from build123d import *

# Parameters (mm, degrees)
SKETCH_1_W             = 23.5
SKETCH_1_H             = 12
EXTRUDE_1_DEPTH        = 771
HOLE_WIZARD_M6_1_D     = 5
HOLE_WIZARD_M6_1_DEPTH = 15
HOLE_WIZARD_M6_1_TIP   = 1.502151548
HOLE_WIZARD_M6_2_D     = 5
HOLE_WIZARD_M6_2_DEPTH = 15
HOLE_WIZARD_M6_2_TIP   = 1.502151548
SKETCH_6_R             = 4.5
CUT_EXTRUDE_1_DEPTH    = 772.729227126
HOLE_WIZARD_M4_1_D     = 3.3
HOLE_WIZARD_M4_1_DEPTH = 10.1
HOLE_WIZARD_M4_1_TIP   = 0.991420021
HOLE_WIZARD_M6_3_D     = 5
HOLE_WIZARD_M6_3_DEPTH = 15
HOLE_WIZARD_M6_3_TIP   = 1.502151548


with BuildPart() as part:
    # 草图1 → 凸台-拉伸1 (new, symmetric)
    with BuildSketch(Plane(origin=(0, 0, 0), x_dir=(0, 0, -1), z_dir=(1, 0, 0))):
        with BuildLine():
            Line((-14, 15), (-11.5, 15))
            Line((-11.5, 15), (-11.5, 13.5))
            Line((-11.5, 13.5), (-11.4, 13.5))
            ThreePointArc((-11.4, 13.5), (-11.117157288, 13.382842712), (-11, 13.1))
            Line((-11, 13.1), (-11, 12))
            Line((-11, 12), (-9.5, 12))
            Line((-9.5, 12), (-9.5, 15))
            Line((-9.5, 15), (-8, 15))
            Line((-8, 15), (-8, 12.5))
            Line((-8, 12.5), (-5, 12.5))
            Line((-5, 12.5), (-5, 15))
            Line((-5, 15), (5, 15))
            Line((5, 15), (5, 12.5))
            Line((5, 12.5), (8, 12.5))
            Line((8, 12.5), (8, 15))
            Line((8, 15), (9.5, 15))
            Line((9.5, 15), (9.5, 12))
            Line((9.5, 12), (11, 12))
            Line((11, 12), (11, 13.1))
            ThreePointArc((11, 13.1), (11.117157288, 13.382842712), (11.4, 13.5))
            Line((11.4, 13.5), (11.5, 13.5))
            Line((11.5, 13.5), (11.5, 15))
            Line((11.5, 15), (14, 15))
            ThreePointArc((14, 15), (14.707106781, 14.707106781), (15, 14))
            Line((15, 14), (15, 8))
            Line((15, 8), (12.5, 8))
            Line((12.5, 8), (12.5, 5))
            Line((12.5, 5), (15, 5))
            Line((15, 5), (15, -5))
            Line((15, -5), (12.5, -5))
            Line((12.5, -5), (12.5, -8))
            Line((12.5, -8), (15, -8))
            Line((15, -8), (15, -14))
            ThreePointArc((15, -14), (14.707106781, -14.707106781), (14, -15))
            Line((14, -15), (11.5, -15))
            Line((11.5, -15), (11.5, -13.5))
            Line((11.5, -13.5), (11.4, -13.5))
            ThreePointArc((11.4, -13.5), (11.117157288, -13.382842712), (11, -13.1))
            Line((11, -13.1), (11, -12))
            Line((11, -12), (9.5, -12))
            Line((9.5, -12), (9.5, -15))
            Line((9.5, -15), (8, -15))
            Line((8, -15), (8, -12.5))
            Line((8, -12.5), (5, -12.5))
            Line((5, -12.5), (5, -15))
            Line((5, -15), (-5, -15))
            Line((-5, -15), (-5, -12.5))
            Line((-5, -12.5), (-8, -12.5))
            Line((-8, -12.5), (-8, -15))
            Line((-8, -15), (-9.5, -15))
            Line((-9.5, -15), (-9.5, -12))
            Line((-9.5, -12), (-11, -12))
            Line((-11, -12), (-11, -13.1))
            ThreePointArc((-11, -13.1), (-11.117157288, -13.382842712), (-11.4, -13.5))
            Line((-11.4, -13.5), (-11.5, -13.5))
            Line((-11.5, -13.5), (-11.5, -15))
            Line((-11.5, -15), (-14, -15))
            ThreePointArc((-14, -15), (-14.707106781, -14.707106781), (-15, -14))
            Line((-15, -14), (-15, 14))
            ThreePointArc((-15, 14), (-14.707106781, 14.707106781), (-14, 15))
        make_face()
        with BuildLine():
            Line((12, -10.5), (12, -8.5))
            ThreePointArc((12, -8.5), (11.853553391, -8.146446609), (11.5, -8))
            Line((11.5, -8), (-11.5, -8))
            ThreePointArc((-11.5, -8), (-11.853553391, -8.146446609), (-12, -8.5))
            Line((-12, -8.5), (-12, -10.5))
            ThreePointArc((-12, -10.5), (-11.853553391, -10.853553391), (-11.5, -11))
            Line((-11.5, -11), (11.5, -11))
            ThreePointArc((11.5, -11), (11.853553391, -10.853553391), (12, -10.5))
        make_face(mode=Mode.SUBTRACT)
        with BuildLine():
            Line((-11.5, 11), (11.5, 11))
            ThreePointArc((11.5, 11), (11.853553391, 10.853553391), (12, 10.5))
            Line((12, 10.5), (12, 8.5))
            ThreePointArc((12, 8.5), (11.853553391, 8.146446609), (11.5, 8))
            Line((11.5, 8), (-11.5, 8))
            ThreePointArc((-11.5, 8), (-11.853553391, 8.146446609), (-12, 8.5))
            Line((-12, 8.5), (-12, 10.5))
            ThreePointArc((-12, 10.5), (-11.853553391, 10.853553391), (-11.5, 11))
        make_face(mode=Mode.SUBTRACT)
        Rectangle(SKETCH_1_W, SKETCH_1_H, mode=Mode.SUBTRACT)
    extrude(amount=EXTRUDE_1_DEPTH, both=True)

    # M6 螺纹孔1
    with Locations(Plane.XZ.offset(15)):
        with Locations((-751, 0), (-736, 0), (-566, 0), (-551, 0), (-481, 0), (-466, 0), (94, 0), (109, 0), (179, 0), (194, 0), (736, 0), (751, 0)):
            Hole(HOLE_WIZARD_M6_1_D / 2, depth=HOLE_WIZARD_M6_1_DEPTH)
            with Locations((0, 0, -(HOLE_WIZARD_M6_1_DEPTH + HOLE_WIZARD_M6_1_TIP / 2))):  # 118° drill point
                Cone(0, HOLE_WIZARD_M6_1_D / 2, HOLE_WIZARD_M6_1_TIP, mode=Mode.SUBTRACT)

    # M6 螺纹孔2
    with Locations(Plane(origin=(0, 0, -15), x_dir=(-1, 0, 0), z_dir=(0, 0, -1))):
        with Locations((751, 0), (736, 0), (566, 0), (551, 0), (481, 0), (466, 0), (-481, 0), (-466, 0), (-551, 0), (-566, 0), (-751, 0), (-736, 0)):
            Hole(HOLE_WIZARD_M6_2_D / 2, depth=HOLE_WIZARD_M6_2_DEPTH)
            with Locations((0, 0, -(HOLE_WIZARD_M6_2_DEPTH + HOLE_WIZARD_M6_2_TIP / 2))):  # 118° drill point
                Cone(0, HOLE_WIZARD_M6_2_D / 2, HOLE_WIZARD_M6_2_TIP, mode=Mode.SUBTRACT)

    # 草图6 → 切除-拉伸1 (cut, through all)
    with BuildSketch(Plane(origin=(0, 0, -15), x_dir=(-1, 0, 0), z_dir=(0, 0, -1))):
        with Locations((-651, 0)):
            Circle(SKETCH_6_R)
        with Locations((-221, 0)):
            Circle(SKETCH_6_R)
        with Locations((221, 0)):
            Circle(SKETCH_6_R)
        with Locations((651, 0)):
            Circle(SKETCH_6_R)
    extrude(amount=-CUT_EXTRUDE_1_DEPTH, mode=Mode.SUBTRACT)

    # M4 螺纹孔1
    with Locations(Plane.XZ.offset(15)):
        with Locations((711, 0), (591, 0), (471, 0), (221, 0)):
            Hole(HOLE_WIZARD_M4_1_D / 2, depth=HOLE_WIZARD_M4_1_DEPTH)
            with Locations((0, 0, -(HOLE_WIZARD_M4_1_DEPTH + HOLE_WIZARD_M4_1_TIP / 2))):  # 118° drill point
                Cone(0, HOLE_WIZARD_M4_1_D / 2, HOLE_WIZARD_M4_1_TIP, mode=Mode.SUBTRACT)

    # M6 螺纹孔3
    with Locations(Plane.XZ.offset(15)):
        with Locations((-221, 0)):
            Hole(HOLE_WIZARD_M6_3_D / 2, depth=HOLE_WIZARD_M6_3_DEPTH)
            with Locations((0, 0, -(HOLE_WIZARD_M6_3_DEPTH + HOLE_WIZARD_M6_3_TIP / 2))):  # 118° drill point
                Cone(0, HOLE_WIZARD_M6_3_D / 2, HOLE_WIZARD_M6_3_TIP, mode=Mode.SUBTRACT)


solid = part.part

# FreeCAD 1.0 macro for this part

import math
import FreeCAD as App
import Part
import Sketcher
from FreeCAD import Vector


def add_polygon(sketch, points):
    """Adds a closed chain of lines whose ends are joined by coincident constraints."""
    first, n = sketch.GeometryCount, len(points)
    for a, b in zip(points, points[1:] + points[:1]):
        sketch.addGeometry(Part.LineSegment(App.Vector(*a, 0), App.Vector(*b, 0)), False)
    for i in range(n):
        sketch.addConstraint(Sketcher.Constraint("Coincident", first + i, 2, first + (i + 1) % n, 1))

doc = App.newDocument("Part")
body = doc.addObject("PartDesign::Body", "Body")

# Sketch on YZ plane
sketch1 = doc.addObject("Sketcher::SketchObject", "Sketch")
body.addObject(sketch1)
sketch1.AttachmentSupport = (doc.YZ_Plane, [""])
sketch1.MapMode = "FlatFace"
sketch1.addGeometry(Part.LineSegment(Vector(15, 11.5, 0), Vector(15, 14, 0)), False)  # 0
sketch1.addGeometry(Part.ArcOfCircle(Part.Circle(Vector(14, 14, 0), Vector(0, 0, 1), 1), math.radians(0), math.radians(90)), False)  # 1
sketch1.addGeometry(Part.LineSegment(Vector(14, 15, 0), Vector(-14, 15, 0)), False)  # 2
sketch1.addGeometry(Part.ArcOfCircle(Part.Circle(Vector(-14, 14, 0), Vector(0, 0, 1), 1), math.radians(90), math.radians(180)), False)  # 3
sketch1.addGeometry(Part.LineSegment(Vector(-15, 14, 0), Vector(-15, 11.5, 0)), False)  # 4
sketch1.addGeometry(Part.LineSegment(Vector(-15, 11.5, 0), Vector(-13.5, 11.5, 0)), False)  # 5
sketch1.addGeometry(Part.LineSegment(Vector(-13.5, 11.5, 0), Vector(-13.5, 11.4, 0)), False)  # 6
sketch1.addGeometry(Part.ArcOfCircle(Part.Circle(Vector(-13.1, 11.4, 0), Vector(0, 0, 1), 0.4), math.radians(-180), math.radians(-90)), False)  # 7
sketch1.addGeometry(Part.LineSegment(Vector(-13.1, 11, 0), Vector(-12, 11, 0)), False)  # 8
sketch1.addGeometry(Part.LineSegment(Vector(-12, 11, 0), Vector(-12, 9.5, 0)), False)  # 9
sketch1.addGeometry(Part.LineSegment(Vector(-12, 9.5, 0), Vector(-15, 9.5, 0)), False)  # 10
sketch1.addGeometry(Part.LineSegment(Vector(-15, 9.5, 0), Vector(-15, 8, 0)), False)  # 11
sketch1.addGeometry(Part.LineSegment(Vector(-15, 8, 0), Vector(-12.5, 8, 0)), False)  # 12
sketch1.addGeometry(Part.LineSegment(Vector(-12.5, 8, 0), Vector(-12.5, 5, 0)), False)  # 13
sketch1.addGeometry(Part.LineSegment(Vector(-12.5, 5, 0), Vector(-15, 5, 0)), False)  # 14
sketch1.addGeometry(Part.LineSegment(Vector(-15, 5, 0), Vector(-15, -5, 0)), False)  # 15
sketch1.addGeometry(Part.LineSegment(Vector(-15, -5, 0), Vector(-12.5, -5, 0)), False)  # 16
sketch1.addGeometry(Part.LineSegment(Vector(-12.5, -5, 0), Vector(-12.5, -8, 0)), False)  # 17
sketch1.addGeometry(Part.LineSegment(Vector(-12.5, -8, 0), Vector(-15, -8, 0)), False)  # 18
sketch1.addGeometry(Part.LineSegment(Vector(-15, -8, 0), Vector(-15, -9.5, 0)), False)  # 19
sketch1.addGeometry(Part.LineSegment(Vector(-15, -9.5, 0), Vector(-12, -9.5, 0)), False)  # 20
sketch1.addGeometry(Part.LineSegment(Vector(-12, -9.5, 0), Vector(-12, -11, 0)), False)  # 21
sketch1.addGeometry(Part.LineSegment(Vector(-12, -11, 0), Vector(-13.1, -11, 0)), False)  # 22
sketch1.addGeometry(Part.ArcOfCircle(Part.Circle(Vector(-13.1, -11.4, 0), Vector(0, 0, 1), 0.4), math.radians(90), math.radians(180)), False)  # 23
sketch1.addGeometry(Part.LineSegment(Vector(-13.5, -11.4, 0), Vector(-13.5, -11.5, 0)), False)  # 24
sketch1.addGeometry(Part.LineSegment(Vector(-13.5, -11.5, 0), Vector(-15, -11.5, 0)), False)  # 25
sketch1.addGeometry(Part.LineSegment(Vector(-15, -11.5, 0), Vector(-15, -14, 0)), False)  # 26
sketch1.addGeometry(Part.ArcOfCircle(Part.Circle(Vector(-14, -14, 0), Vector(0, 0, 1), 1), math.radians(-180), math.radians(-90)), False)  # 27
sketch1.addGeometry(Part.LineSegment(Vector(-14, -15, 0), Vector(-8, -15, 0)), False)  # 28
sketch1.addGeometry(Part.LineSegment(Vector(-8, -15, 0), Vector(-8, -12.5, 0)), False)  # 29
sketch1.addGeometry(Part.LineSegment(Vector(-8, -12.5, 0), Vector(-5, -12.5, 0)), False)  # 30
sketch1.addGeometry(Part.LineSegment(Vector(-5, -12.5, 0), Vector(-5, -15, 0)), False)  # 31
sketch1.addGeometry(Part.LineSegment(Vector(-5, -15, 0), Vector(5, -15, 0)), False)  # 32
sketch1.addGeometry(Part.LineSegment(Vector(5, -15, 0), Vector(5, -12.5, 0)), False)  # 33
sketch1.addGeometry(Part.LineSegment(Vector(5, -12.5, 0), Vector(8, -12.5, 0)), False)  # 34
sketch1.addGeometry(Part.LineSegment(Vector(8, -12.5, 0), Vector(8, -15, 0)), False)  # 35
sketch1.addGeometry(Part.LineSegment(Vector(8, -15, 0), Vector(14, -15, 0)), False)  # 36
sketch1.addGeometry(Part.ArcOfCircle(Part.Circle(Vector(14, -14, 0), Vector(0, 0, 1), 1), math.radians(-90), math.radians(0)), False)  # 37
sketch1.addGeometry(Part.LineSegment(Vector(15, -14, 0), Vector(15, -11.5, 0)), False)  # 38
sketch1.addGeometry(Part.LineSegment(Vector(15, -11.5, 0), Vector(13.5, -11.5, 0)), False)  # 39
sketch1.addGeometry(Part.LineSegment(Vector(13.5, -11.5, 0), Vector(13.5, -11.4, 0)), False)  # 40
sketch1.addGeometry(Part.ArcOfCircle(Part.Circle(Vector(13.1, -11.4, 0), Vector(0, 0, 1), 0.4), math.radians(0), math.radians(90)), False)  # 41
sketch1.addGeometry(Part.LineSegment(Vector(13.1, -11, 0), Vector(12, -11, 0)), False)  # 42
sketch1.addGeometry(Part.LineSegment(Vector(12, -11, 0), Vector(12, -9.5, 0)), False)  # 43
sketch1.addGeometry(Part.LineSegment(Vector(12, -9.5, 0), Vector(15, -9.5, 0)), False)  # 44
sketch1.addGeometry(Part.LineSegment(Vector(15, -9.5, 0), Vector(15, -8, 0)), False)  # 45
sketch1.addGeometry(Part.LineSegment(Vector(15, -8, 0), Vector(12.5, -8, 0)), False)  # 46
sketch1.addGeometry(Part.LineSegment(Vector(12.5, -8, 0), Vector(12.5, -5, 0)), False)  # 47
sketch1.addGeometry(Part.LineSegment(Vector(12.5, -5, 0), Vector(15, -5, 0)), False)  # 48
sketch1.addGeometry(Part.LineSegment(Vector(15, -5, 0), Vector(15, 5, 0)), False)  # 49
sketch1.addGeometry(Part.LineSegment(Vector(15, 5, 0), Vector(12.5, 5, 0)), False)  # 50
sketch1.addGeometry(Part.LineSegment(Vector(12.5, 5, 0), Vector(12.5, 8, 0)), False)  # 51
sketch1.addGeometry(Part.LineSegment(Vector(12.5, 8, 0), Vector(15, 8, 0)), False)  # 52
sketch1.addGeometry(Part.LineSegment(Vector(15, 8, 0), Vector(15, 9.5, 0)), False)  # 53
sketch1.addGeometry(Part.LineSegment(Vector(15, 9.5, 0), Vector(12, 9.5, 0)), False)  # 54
sketch1.addGeometry(Part.LineSegment(Vector(12, 9.5, 0), Vector(12, 11, 0)), False)  # 55
sketch1.addGeometry(Part.LineSegment(Vector(12, 11, 0), Vector(13.1, 11, 0)), False)  # 56
sketch1.addGeometry(Part.ArcOfCircle(Part.Circle(Vector(13.1, 11.4, 0), Vector(0, 0, 1), 0.4), math.radians(-90), math.radians(0)), False)  # 57
sketch1.addGeometry(Part.LineSegment(Vector(13.5, 11.4, 0), Vector(13.5, 11.5, 0)), False)  # 58
sketch1.addGeometry(Part.LineSegment(Vector(13.5, 11.5, 0), Vector(15, 11.5, 0)), False)  # 59
sketch1.addGeometry(Part.ArcOfCircle(Part.Circle(Vector(-10.5, -11.5, 0), Vector(0, 0, 1), 0.5), math.radians(180), math.radians(270)), False)  # 60
sketch1.addGeometry(Part.LineSegment(Vector(-11, -11.5, 0), Vector(-11, 11.5, 0)), False)  # 61
sketch1.addGeometry(Part.ArcOfCircle(Part.Circle(Vector(-10.5, 11.5, 0), Vector(0, 0, 1), 0.5), math.radians(90), math.radians(180)), False)  # 62
sketch1.addGeometry(Part.LineSegment(Vector(-10.5, 12, 0), Vector(-8.5, 12, 0)), False)  # 63
sketch1.addGeometry(Part.ArcOfCircle(Part.Circle(Vector(-8.5, 11.5, 0), Vector(0, 0, 1), 0.5), math.radians(0), math.radians(90)), False)  # 64
sketch1.addGeometry(Part.LineSegment(Vector(-8, 11.5, 0), Vector(-8, -11.5, 0)), False)  # 65
sketch1.addGeometry(Part.ArcOfCircle(Part.Circle(Vector(-8.5, -11.5, 0), Vector(0, 0, 1), 0.5), math.radians(-90), math.radians(0)), False)  # 66
sketch1.addGeometry(Part.LineSegment(Vector(-8.5, -12, 0), Vector(-10.5, -12, 0)), False)  # 67
add_polygon(sketch1, [(-6, 11.75), (6, 11.75), (6, -11.75), (-6, -11.75)])  # lines 68-71
sketch1.addGeometry(Part.LineSegment(Vector(11, 11.5, 0), Vector(11, -11.5, 0)), False)  # 72
sketch1.addGeometry(Part.ArcOfCircle(Part.Circle(Vector(10.5, -11.5, 0), Vector(0, 0, 1), 0.5), math.radians(-90), math.radians(0)), False)  # 73
sketch1.addGeometry(Part.LineSegment(Vector(10.5, -12, 0), Vector(8.5, -12, 0)), False)  # 74
sketch1.addGeometry(Part.ArcOfCircle(Part.Circle(Vector(8.5, -11.5, 0), Vector(0, 0, 1), 0.5), math.radians(180), math.radians(270)), False)  # 75
sketch1.addGeometry(Part.LineSegment(Vector(8, -11.5, 0), Vector(8, 11.5, 0)), False)  # 76
sketch1.addGeometry(Part.ArcOfCircle(Part.Circle(Vector(8.5, 11.5, 0), Vector(0, 0, 1), 0.5), math.radians(90), math.radians(180)), False)  # 77
sketch1.addGeometry(Part.LineSegment(Vector(8.5, 12, 0), Vector(10.5, 12, 0)), False)  # 78
sketch1.addGeometry(Part.ArcOfCircle(Part.Circle(Vector(10.5, 11.5, 0), Vector(0, 0, 1), 0.5), math.radians(0), math.radians(90)), False)  # 79
sketch1.addConstraint(Sketcher.Constraint("Tangent", 0, 2, 1, 1))
sketch1.addConstraint(Sketcher.Constraint("Tangent", 1, 2, 2, 1))
sketch1.addConstraint(Sketcher.Constraint("Tangent", 2, 2, 3, 1))
sketch1.addConstraint(Sketcher.Constraint("Tangent", 3, 2, 4, 1))
sketch1.addConstraint(Sketcher.Constraint("Coincident", 4, 2, 5, 1))
sketch1.addConstraint(Sketcher.Constraint("Coincident", 5, 2, 6, 1))
sketch1.addConstraint(Sketcher.Constraint("Tangent", 6, 2, 7, 1))
sketch1.addConstraint(Sketcher.Constraint("Tangent", 7, 2, 8, 1))
sketch1.addConstraint(Sketcher.Constraint("Coincident", 8, 2, 9, 1))
sketch1.addConstraint(Sketcher.Constraint("Coincident", 9, 2, 10, 1))
sketch1.addConstraint(Sketcher.Constraint("Coincident", 10, 2, 11, 1))
sketch1.addConstraint(Sketcher.Constraint("Coincident", 11, 2, 12, 1))
sketch1.addConstraint(Sketcher.Constraint("Coincident", 12, 2, 13, 1))
sketch1.addConstraint(Sketcher.Constraint("Coincident", 13, 2, 14, 1))
sketch1.addConstraint(Sketcher.Constraint("Coincident", 14, 2, 15, 1))
sketch1.addConstraint(Sketcher.Constraint("Coincident", 15, 2, 16, 1))
sketch1.addConstraint(Sketcher.Constraint("Coincident", 16, 2, 17, 1))
sketch1.addConstraint(Sketcher.Constraint("Coincident", 17, 2, 18, 1))
sketch1.addConstraint(Sketcher.Constraint("Coincident", 18, 2, 19, 1))
sketch1.addConstraint(Sketcher.Constraint("Coincident", 19, 2, 20, 1))
sketch1.addConstraint(Sketcher.Constraint("Coincident", 20, 2, 21, 1))
sketch1.addConstraint(Sketcher.Constraint("Coincident", 21, 2, 22, 1))
sketch1.addConstraint(Sketcher.Constraint("Tangent", 22, 2, 23, 1))
sketch1.addConstraint(Sketcher.Constraint("Tangent", 23, 2, 24, 1))
sketch1.addConstraint(Sketcher.Constraint("Coincident", 24, 2, 25, 1))
sketch1.addConstraint(Sketcher.Constraint("Coincident", 25, 2, 26, 1))
sketch1.addConstraint(Sketcher.Constraint("Tangent", 26, 2, 27, 1))
sketch1.addConstraint(Sketcher.Constraint("Tangent", 27, 2, 28, 1))
sketch1.addConstraint(Sketcher.Constraint("Coincident", 28, 2, 29, 1))
sketch1.addConstraint(Sketcher.Constraint("Coincident", 29, 2, 30, 1))
sketch1.addConstraint(Sketcher.Constraint("Coincident", 30, 2, 31, 1))
sketch1.addConstraint(Sketcher.Constraint("Coincident", 31, 2, 32, 1))
sketch1.addConstraint(Sketcher.Constraint("Coincident", 32, 2, 33, 1))
sketch1.addConstraint(Sketcher.Constraint("Coincident", 33, 2, 34, 1))
sketch1.addConstraint(Sketcher.Constraint("Coincident", 34, 2, 35, 1))
sketch1.addConstraint(Sketcher.Constraint("Coincident", 35, 2, 36, 1))
sketch1.addConstraint(Sketcher.Constraint("Tangent", 36, 2, 37, 1))
sketch1.addConstraint(Sketcher.Constraint("Tangent", 37, 2, 38, 1))
sketch1.addConstraint(Sketcher.Constraint("Coincident", 38, 2, 39, 1))
sketch1.addConstraint(Sketcher.Constraint("Coincident", 39, 2, 40, 1))
sketch1.addConstraint(Sketcher.Constraint("Tangent", 40, 2, 41, 1))
sketch1.addConstraint(Sketcher.Constraint("Tangent", 41, 2, 42, 1))
sketch1.addConstraint(Sketcher.Constraint("Coincident", 42, 2, 43, 1))
sketch1.addConstraint(Sketcher.Constraint("Coincident", 43, 2, 44, 1))
sketch1.addConstraint(Sketcher.Constraint("Coincident", 44, 2, 45, 1))
sketch1.addConstraint(Sketcher.Constraint("Coincident", 45, 2, 46, 1))
sketch1.addConstraint(Sketcher.Constraint("Coincident", 46, 2, 47, 1))
sketch1.addConstraint(Sketcher.Constraint("Coincident", 47, 2, 48, 1))
sketch1.addConstraint(Sketcher.Constraint("Coincident", 48, 2, 49, 1))
sketch1.addConstraint(Sketcher.Constraint("Coincident", 49, 2, 50, 1))
sketch1.addConstraint(Sketcher.Constraint("Coincident", 50, 2, 51, 1))
sketch1.addConstraint(Sketcher.Constraint("Coincident", 51, 2, 52, 1))
sketch1.addConstraint(Sketcher.Constraint("Coincident", 52, 2, 53, 1))
sketch1.addConstraint(Sketcher.Constraint("Coincident", 53, 2, 54, 1))
sketch1.addConstraint(Sketcher.Constraint("Coincident", 54, 2, 55, 1))
sketch1.addConstraint(Sketcher.Constraint("Coincident", 55, 2, 56, 1))
sketch1.addConstraint(Sketcher.Constraint("Tangent", 56, 2, 57, 1))
sketch1.addConstraint(Sketcher.Constraint("Tangent", 57, 2, 58, 1))
sketch1.addConstraint(Sketcher.Constraint("Coincident", 58, 2, 59, 1))
sketch1.addConstraint(Sketcher.Constraint("Coincident", 59, 2, 0, 1))
sketch1.addConstraint(Sketcher.Constraint("Tangent", 60, 1, 61, 1))
sketch1.addConstraint(Sketcher.Constraint("Tangent", 61, 2, 62, 2))
sketch1.addConstraint(Sketcher.Constraint("Tangent", 62, 1, 63, 1))
sketch1.addConstraint(Sketcher.Constraint("Tangent", 63, 2, 64, 2))
sketch1.addConstraint(Sketcher.Constraint("Tangent", 64, 1, 65, 1))
sketch1.addConstraint(Sketcher.Constraint("Tangent", 65, 2, 66, 2))
sketch1.addConstraint(Sketcher.Constraint("Tangent", 66, 1, 67, 1))
sketch1.addConstraint(Sketcher.Constraint("Tangent", 67, 2, 60, 2))
sketch1.addConstraint(Sketcher.Constraint("Tangent", 72, 2, 73, 2))
sketch1.addConstraint(Sketcher.Constraint("Tangent", 73, 1, 74, 1))
sketch1.addConstraint(Sketcher.Constraint("Tangent", 74, 2, 75, 2))
sketch1.addConstraint(Sketcher.Constraint("Tangent", 75, 1, 76, 1))
sketch1.addConstraint(Sketcher.Constraint("Tangent", 76, 2, 77, 2))
sketch1.addConstraint(Sketcher.Constraint("Tangent", 77, 1, 78, 1))
sketch1.addConstraint(Sketcher.Constraint("Tangent", 78, 2, 79, 2))
sketch1.addConstraint(Sketcher.Constraint("Tangent", 79, 1, 72, 1))
sketch1.addConstraint(Sketcher.Constraint("Vertical", 0))
sketch1.addConstraint(Sketcher.Constraint("Horizontal", 2))
sketch1.addConstraint(Sketcher.Constraint("Vertical", 4))
sketch1.addConstraint(Sketcher.Constraint("Horizontal", 5))
sketch1.addConstraint(Sketcher.Constraint("Vertical", 6))
sketch1.addConstraint(Sketcher.Constraint("Horizontal", 8))
sketch1.addConstraint(Sketcher.Constraint("Vertical", 9))
sketch1.addConstraint(Sketcher.Constraint("Horizontal", 10))
sketch1.addConstraint(Sketcher.Constraint("Vertical", 11))
sketch1.addConstraint(Sketcher.Constraint("Horizontal", 12))
sketch1.addConstraint(Sketcher.Constraint("Vertical", 13))
sketch1.addConstraint(Sketcher.Constraint("Horizontal", 14))
sketch1.addConstraint(Sketcher.Constraint("Vertical", 15))
sketch1.addConstraint(Sketcher.Constraint("Horizontal", 16))
sketch1.addConstraint(Sketcher.Constraint("Vertical", 17))
sketch1.addConstraint(Sketcher.Constraint("Horizontal", 18))
sketch1.addConstraint(Sketcher.Constraint("Vertical", 19))
sketch1.addConstraint(Sketcher.Constraint("Horizontal", 20))
sketch1.addConstraint(Sketcher.Constraint("Vertical", 21))
sketch1.addConstraint(Sketcher.Constraint("Horizontal", 22))
sketch1.addConstraint(Sketcher.Constraint("Vertical", 24))
sketch1.addConstraint(Sketcher.Constraint("Horizontal", 25))
sketch1.addConstraint(Sketcher.Constraint("Vertical", 26))
sketch1.addConstraint(Sketcher.Constraint("Horizontal", 28))
sketch1.addConstraint(Sketcher.Constraint("Vertical", 29))
sketch1.addConstraint(Sketcher.Constraint("Horizontal", 30))
sketch1.addConstraint(Sketcher.Constraint("Vertical", 31))
sketch1.addConstraint(Sketcher.Constraint("Horizontal", 32))
sketch1.addConstraint(Sketcher.Constraint("Vertical", 33))
sketch1.addConstraint(Sketcher.Constraint("Horizontal", 34))
sketch1.addConstraint(Sketcher.Constraint("Vertical", 35))
sketch1.addConstraint(Sketcher.Constraint("Horizontal", 36))
sketch1.addConstraint(Sketcher.Constraint("Vertical", 38))
sketch1.addConstraint(Sketcher.Constraint("Horizontal", 39))
sketch1.addConstraint(Sketcher.Constraint("Vertical", 40))
sketch1.addConstraint(Sketcher.Constraint("Horizontal", 42))
sketch1.addConstraint(Sketcher.Constraint("Vertical", 43))
sketch1.addConstraint(Sketcher.Constraint("Horizontal", 44))
sketch1.addConstraint(Sketcher.Constraint("Vertical", 45))
sketch1.addConstraint(Sketcher.Constraint("Horizontal", 46))
sketch1.addConstraint(Sketcher.Constraint("Vertical", 47))
sketch1.addConstraint(Sketcher.Constraint("Horizontal", 48))
sketch1.addConstraint(Sketcher.Constraint("Vertical", 49))
sketch1.addConstraint(Sketcher.Constraint("Horizontal", 50))
sketch1.addConstraint(Sketcher.Constraint("Vertical", 51))
sketch1.addConstraint(Sketcher.Constraint("Horizontal", 52))
sketch1.addConstraint(Sketcher.Constraint("Vertical", 53))
sketch1.addConstraint(Sketcher.Constraint("Horizontal", 54))
sketch1.addConstraint(Sketcher.Constraint("Vertical", 55))
sketch1.addConstraint(Sketcher.Constraint("Horizontal", 56))
sketch1.addConstraint(Sketcher.Constraint("Vertical", 58))
sketch1.addConstraint(Sketcher.Constraint("Horizontal", 59))
sketch1.addConstraint(Sketcher.Constraint("Vertical", 61))
sketch1.addConstraint(Sketcher.Constraint("Horizontal", 63))
sketch1.addConstraint(Sketcher.Constraint("Vertical", 65))
sketch1.addConstraint(Sketcher.Constraint("Horizontal", 67))
sketch1.addConstraint(Sketcher.Constraint("Horizontal", 68))
sketch1.addConstraint(Sketcher.Constraint("Vertical", 69))
sketch1.addConstraint(Sketcher.Constraint("Horizontal", 70))
sketch1.addConstraint(Sketcher.Constraint("Vertical", 71))
sketch1.addConstraint(Sketcher.Constraint("Vertical", 72))
sketch1.addConstraint(Sketcher.Constraint("Horizontal", 74))
sketch1.addConstraint(Sketcher.Constraint("Vertical", 76))
sketch1.addConstraint(Sketcher.Constraint("Horizontal", 78))
sketch1.addConstraint(Sketcher.Constraint("Equal", 1, 3))
sketch1.addConstraint(Sketcher.Constraint("Equal", 7, 23))
sketch1.addConstraint(Sketcher.Constraint("Equal", 3, 27))
sketch1.addConstraint(Sketcher.Constraint("Equal", 27, 37))
sketch1.addConstraint(Sketcher.Constraint("Equal", 23, 41))
sketch1.addConstraint(Sketcher.Constraint("Equal", 41, 57))
sketch1.addConstraint(Sketcher.Constraint("Equal", 60, 62))
sketch1.addConstraint(Sketcher.Constraint("Equal", 62, 64))
sketch1.addConstraint(Sketcher.Constraint("Equal", 64, 66))
sketch1.addConstraint(Sketcher.Constraint("Equal", 66, 73))
sketch1.addConstraint(Sketcher.Constraint("Equal", 73, 75))
sketch1.addConstraint(Sketcher.Constraint("Equal", 75, 77))
sketch1.addConstraint(Sketcher.Constraint("Equal", 77, 79))
sketch1.addConstraint(Sketcher.Constraint("Symmetric", 1, 3, 27, 3, -1, 1))
sketch1.addConstraint(Sketcher.Constraint("Symmetric", 3, 3, 37, 3, -1, 1))
sketch1.addConstraint(Sketcher.Constraint("Symmetric", 7, 3, 41, 3, -1, 1))
sketch1.addConstraint(Sketcher.Constraint("Symmetric", 23, 3, 57, 3, -1, 1))
sketch1.addConstraint(Sketcher.Constraint("Symmetric", 62, 3, 73, 3, -1, 1))
sketch1.addConstraint(Sketcher.Constraint("Symmetric", 66, 3, 77, 3, -1, 1))
sketch1.addConstraint(Sketcher.Constraint("Symmetric", 9, 2, 43, 2, -1, 1))
sketch1.addConstraint(Sketcher.Constraint("Symmetric", 11, 2, 45, 2, -1, 1))
sketch1.addConstraint(Sketcher.Constraint("Symmetric", 13, 2, 47, 2, -1, 1))
sketch1.addConstraint(Sketcher.Constraint("Symmetric", 15, 2, 49, 2, -1, 1))
sketch1.addConstraint(Sketcher.Constraint("Symmetric", 17, 2, 51, 2, -1, 1))
sketch1.addConstraint(Sketcher.Constraint("Symmetric", 19, 2, 53, 2, -1, 1))
sketch1.addConstraint(Sketcher.Constraint("Symmetric", 68, 2, 70, 2, -1, 1))
sketch1.addConstraint(Sketcher.Constraint("Symmetric", 23, 3, 41, 3, -2))
sketch1.addConstraint(Sketcher.Constraint("Symmetric", 30, 2, 33, 2, -2))
sketch1.addConstraint(Sketcher.Constraint("Symmetric", 25, 2, 38, 2, -2))
sketch1.addConstraint(Sketcher.Constraint("Symmetric", 20, 2, 43, 2, -2))
sketch1.addConstraint(Sketcher.Constraint("Symmetric", 18, 2, 45, 2, -2))
sketch1.addConstraint(Sketcher.Constraint("Symmetric", 16, 2, 47, 2, -2))
sketch1.addConstraint(Sketcher.Constraint("Horizontal", 66, 3, 73, 3))
sketch1.addConstraint(Sketcher.Constraint("Horizontal", 79, 3, 4, 2))
sketch1.addConstraint(Sketcher.Constraint("Horizontal", 75, 3, 24, 2))
sketch1.addConstraint(Sketcher.Constraint("Horizontal", 28, 2, 31, 2))
sketch1.addConstraint(Sketcher.Constraint("Horizontal", 5, 2, 58, 2))
sketch1.addConstraint(Sketcher.Constraint("Vertical", 4, 2, 10, 2))
sketch1.addConstraint(Sketcher.Constraint("Vertical", 11, 2, 14, 2))
sketch1.addConstraint(Sketcher.Constraint("Vertical", 43, 2, 54, 2))
sketch1.addConstraint(Sketcher.Constraint("Vertical", 29, 2, 64, 1))
sketch1.addConstraint(Sketcher.Constraint("Vertical", 35, 2, 75, 1))
sketch1.addConstraint(Sketcher.Constraint("Equal", 20, 30))
sketch1.addConstraint(Sketcher.Constraint("Equal", 52, 0))
sketch1.addConstraint(Sketcher.Constraint("Equal", 59, 9))
sketch1.addConstraint(Sketcher.Constraint("Equal", 9, 11))
sketch1.addConstraint(Sketcher.Constraint("Equal", 54, 13))
sketch1.addConstraint(Sketcher.Constraint("Equal", 32, 15))
sketch1.addConstraint(Sketcher.Constraint("Equal", 26, 29))
sketch1.addConstraint(Sketcher.Constraint("Radius", 1, 1.0))
sketch1.addConstraint(Sketcher.Constraint("Radius", 7, 0.4))
sketch1.addConstraint(Sketcher.Constraint("Radius", 60, 0.5))
sketch1.addConstraint(Sketcher.Constraint("DistanceX", 2, 2, 2, 1, 28.0))
sketch1.addConstraint(Sketcher.Constraint("DistanceX", 10, 2, 10, 1, 3.0))
sketch1.addConstraint(Sketcher.Constraint("DistanceX", 28, 1, 28, 2, 6.0))
sketch1.addConstraint(Sketcher.Constraint("DistanceX", 63, 1, 63, 2, 2.0))
sketch1.addConstraint(Sketcher.Constraint("DistanceX", 68, 1, 68, 2, 12.0))
sketch1.addConstraint(Sketcher.Constraint("DistanceY", 61, 1, 61, 2, 23.0))
sketch1.addConstraint(Sketcher.Constraint("DistanceX", 5, 1, 5, 2, 1.5))
sketch1.addConstraint(Sketcher.Constraint("DistanceX", 12, 1, 12, 2, 2.5))
sketch1.addConstraint(Sketcher.Constraint("DistanceY", 69, 2, 69, 1, 23.5))
pad1 = doc.addObject("PartDesign::Pad", "Pad")
body.addObject(pad1)
pad1.Profile = sketch1
pad1.Length = 1542
pad1.Midplane = True

# Sketch on XZ plane
sketch2 = doc.addObject("Sketcher::SketchObject", "Sketch001")
body.addObject(sketch2)
sketch2.AttachmentSupport = (doc.XZ_Plane, [""])
sketch2.MapMode = "FlatFace"
sketch2.AttachmentOffset = App.Placement(Vector(0, 0, 15), App.Rotation())
sketch2.addGeometry(Part.Circle(Vector(-751, 0, 0), Vector(0, 0, 1), 2.5), False)
sketch2.addGeometry(Part.Circle(Vector(-736, 0, 0), Vector(0, 0, 1), 2.5), False)
sketch2.addGeometry(Part.Circle(Vector(-566, 0, 0), Vector(0, 0, 1), 2.5), False)
sketch2.addGeometry(Part.Circle(Vector(-551, 0, 0), Vector(0, 0, 1), 2.5), False)
sketch2.addGeometry(Part.Circle(Vector(-481, 0, 0), Vector(0, 0, 1), 2.5), False)
sketch2.addGeometry(Part.Circle(Vector(-466, 0, 0), Vector(0, 0, 1), 2.5), False)
sketch2.addGeometry(Part.Circle(Vector(94, 0, 0), Vector(0, 0, 1), 2.5), False)
sketch2.addGeometry(Part.Circle(Vector(109, 0, 0), Vector(0, 0, 1), 2.5), False)
sketch2.addGeometry(Part.Circle(Vector(179, 0, 0), Vector(0, 0, 1), 2.5), False)
sketch2.addGeometry(Part.Circle(Vector(194, 0, 0), Vector(0, 0, 1), 2.5), False)
sketch2.addGeometry(Part.Circle(Vector(736, 0, 0), Vector(0, 0, 1), 2.5), False)
sketch2.addGeometry(Part.Circle(Vector(751, 0, 0), Vector(0, 0, 1), 2.5), False)
sketch2.addConstraint(Sketcher.Constraint("Equal", 0, 1))
sketch2.addConstraint(Sketcher.Constraint("Equal", 1, 2))
sketch2.addConstraint(Sketcher.Constraint("Equal", 2, 3))
sketch2.addConstraint(Sketcher.Constraint("Equal", 3, 4))
sketch2.addConstraint(Sketcher.Constraint("Equal", 4, 5))
sketch2.addConstraint(Sketcher.Constraint("Equal", 5, 6))
sketch2.addConstraint(Sketcher.Constraint("Equal", 6, 7))
sketch2.addConstraint(Sketcher.Constraint("Equal", 7, 8))
sketch2.addConstraint(Sketcher.Constraint("Equal", 8, 9))
sketch2.addConstraint(Sketcher.Constraint("Equal", 9, 10))
sketch2.addConstraint(Sketcher.Constraint("Equal", 10, 11))
sketch2.addConstraint(Sketcher.Constraint("Symmetric", 1, 3, 10, 3, -1, 1))
sketch2.addConstraint(Sketcher.Constraint("Symmetric", 0, 3, 11, 3, -1, 1))
sketch2.addConstraint(Sketcher.Constraint("PointOnObject", 0, 3, -1))
sketch2.addConstraint(Sketcher.Constraint("PointOnObject", 1, 3, -1))
sketch2.addConstraint(Sketcher.Constraint("PointOnObject", 2, 3, -1))
sketch2.addConstraint(Sketcher.Constraint("PointOnObject", 3, 3, -1))
sketch2.addConstraint(Sketcher.Constraint("PointOnObject", 4, 3, -1))
sketch2.addConstraint(Sketcher.Constraint("PointOnObject", 5, 3, -1))
sketch2.addConstraint(Sketcher.Constraint("PointOnObject", 6, 3, -1))
sketch2.addConstraint(Sketcher.Constraint("PointOnObject", 7, 3, -1))
sketch2.addConstraint(Sketcher.Constraint("PointOnObject", 8, 3, -1))
sketch2.addConstraint(Sketcher.Constraint("PointOnObject", 9, 3, -1))
sketch2.addConstraint(Sketcher.Constraint("Diameter", 0, 5.0))
sketch2.addConstraint(Sketcher.Constraint("DistanceX", 0, 3, -1, 1, 751.0))
sketch2.addConstraint(Sketcher.Constraint("DistanceX", 1, 3, -1, 1, 736.0))
sketch2.addConstraint(Sketcher.Constraint("DistanceX", 2, 3, -1, 1, 566.0))
sketch2.addConstraint(Sketcher.Constraint("DistanceX", 3, 3, -1, 1, 551.0))
sketch2.addConstraint(Sketcher.Constraint("DistanceX", 4, 3, -1, 1, 481.0))
sketch2.addConstraint(Sketcher.Constraint("DistanceX", 5, 3, -1, 1, 466.0))
sketch2.addConstraint(Sketcher.Constraint("DistanceX", -1, 1, 6, 3, 94.0))
sketch2.addConstraint(Sketcher.Constraint("DistanceX", -1, 1, 7, 3, 109.0))
sketch2.addConstraint(Sketcher.Constraint("DistanceX", -1, 1, 8, 3, 179.0))
sketch2.addConstraint(Sketcher.Constraint("DistanceX", -1, 1, 9, 3, 194.0))
doc.recompute()
hole = doc.addObject("PartDesign::Hole", "Hole")
body.addObject(hole)
hole.Profile = sketch2
hole.ThreadType = "None"
hole.Diameter = 5
hole.DepthType = "Dimension"
hole.Depth = 15
hole.DrillPoint = "Angled"
hole.DrillPointAngle = 118

# Sketch on XY plane
sketch3 = doc.addObject("Sketcher::SketchObject", "Sketch002")
body.addObject(sketch3)
sketch3.AttachmentSupport = (doc.XY_Plane, [""])
sketch3.MapMode = "FlatFace"
sketch3.AttachmentOffset = App.Placement(Vector(0, 0, -15), App.Rotation())
sketch3.addGeometry(Part.Circle(Vector(-751, 0, 0), Vector(0, 0, 1), 2.5), False)
sketch3.addGeometry(Part.Circle(Vector(-736, 0, 0), Vector(0, 0, 1), 2.5), False)
sketch3.addGeometry(Part.Circle(Vector(-566, 0, 0), Vector(0, 0, 1), 2.5), False)
sketch3.addGeometry(Part.Circle(Vector(-551, 0, 0), Vector(0, 0, 1), 2.5), False)
sketch3.addGeometry(Part.Circle(Vector(-481, 0, 0), Vector(0, 0, 1), 2.5), False)
sketch3.addGeometry(Part.Circle(Vector(-466, 0, 0), Vector(0, 0, 1), 2.5), False)
sketch3.addGeometry(Part.Circle(Vector(481, 0, 0), Vector(0, 0, 1), 2.5), False)
sketch3.addGeometry(Part.Circle(Vector(466, 0, 0), Vector(0, 0, 1), 2.5), False)
sketch3.addGeometry(Part.Circle(Vector(551, 0, 0), Vector(0, 0, 1), 2.5), False)
sketch3.addGeometry(Part.Circle(Vector(566, 0, 0), Vector(0, 0, 1), 2.5), False)
sketch3.addGeometry(Part.Circle(Vector(751, 0, 0), Vector(0, 0, 1), 2.5), False)
sketch3.addGeometry(Part.Circle(Vector(736, 0, 0), Vector(0, 0, 1), 2.5), False)
sketch3.addConstraint(Sketcher.Constraint("Equal", 0, 1))
sketch3.addConstraint(Sketcher.Constraint("Equal", 1, 2))
sketch3.addConstraint(Sketcher.Constraint("Equal", 2, 3))
sketch3.addConstraint(Sketcher.Constraint("Equal", 3, 4))
sketch3.addConstraint(Sketcher.Constraint("Equal", 4, 5))
sketch3.addConstraint(Sketcher.Constraint("Equal", 5, 6))
sketch3.addConstraint(Sketcher.Constraint("Equal", 6, 7))
sketch3.addConstraint(Sketcher.Constraint("Equal", 7, 8))
sketch3.addConstraint(Sketcher.Constraint("Equal", 8, 9))
sketch3.addConstraint(Sketcher.Constraint("Equal", 9, 10))
sketch3.addConstraint(Sketcher.Constraint("Equal", 10, 11))
sketch3.addConstraint(Sketcher.Constraint("Symmetric", 4, 3, 6, 3, -1, 1))
sketch3.addConstraint(Sketcher.Constraint("Symmetric", 5, 3, 7, 3, -1, 1))
sketch3.addConstraint(Sketcher.Constraint("Symmetric", 3, 3, 8, 3, -1, 1))
sketch3.addConstraint(Sketcher.Constraint("Symmetric", 2, 3, 9, 3, -1, 1))
sketch3.addConstraint(Sketcher.Constraint("Symmetric", 0, 3, 10, 3, -1, 1))
sketch3.addConstraint(Sketcher.Constraint("Symmetric", 1, 3, 11, 3, -1, 1))
sketch3.addConstraint(Sketcher.Constraint("PointOnObject", 0, 3, -1))
sketch3.addConstraint(Sketcher.Constraint("PointOnObject", 1, 3, -1))
sketch3.addConstraint(Sketcher.Constraint("PointOnObject", 2, 3, -1))
sketch3.addConstraint(Sketcher.Constraint("PointOnObject", 3, 3, -1))
sketch3.addConstraint(Sketcher.Constraint("PointOnObject", 4, 3, -1))
sketch3.addConstraint(Sketcher.Constraint("PointOnObject", 5, 3, -1))
sketch3.addConstraint(Sketcher.Constraint("Diameter", 0, 5.0))
sketch3.addConstraint(Sketcher.Constraint("DistanceX", 0, 3, -1, 1, 751.0))
sketch3.addConstraint(Sketcher.Constraint("DistanceX", 1, 3, -1, 1, 736.0))
sketch3.addConstraint(Sketcher.Constraint("DistanceX", 2, 3, -1, 1, 566.0))
sketch3.addConstraint(Sketcher.Constraint("DistanceX", 3, 3, -1, 1, 551.0))
sketch3.addConstraint(Sketcher.Constraint("DistanceX", 4, 3, -1, 1, 481.0))
sketch3.addConstraint(Sketcher.Constraint("DistanceX", 5, 3, -1, 1, 466.0))
doc.recompute()
hole2 = doc.addObject("PartDesign::Hole", "Hole001")
body.addObject(hole2)
hole2.Profile = sketch3
hole2.ThreadType = "None"
hole2.Diameter = 5
hole2.DepthType = "Dimension"
hole2.Depth = 15
hole2.DrillPoint = "Angled"
hole2.DrillPointAngle = 118
hole2.Reversed = True

# Sketch on XY plane
sketch4 = doc.addObject("Sketcher::SketchObject", "Sketch003")
body.addObject(sketch4)
sketch4.AttachmentSupport = (doc.XY_Plane, [""])
sketch4.MapMode = "FlatFace"
sketch4.AttachmentOffset = App.Placement(Vector(0, 0, -15), App.Rotation())
sketch4.addGeometry(Part.Circle(Vector(651, 0, 0), Vector(0, 0, 1), 4.5), False)
sketch4.addGeometry(Part.Circle(Vector(221, 0, 0), Vector(0, 0, 1), 4.5), False)
sketch4.addGeometry(Part.Circle(Vector(-221, 0, 0), Vector(0, 0, 1), 4.5), False)
sketch4.addGeometry(Part.Circle(Vector(-651, 0, 0), Vector(0, 0, 1), 4.5), False)
sketch4.addConstraint(Sketcher.Constraint("Equal", 0, 1))
sketch4.addConstraint(Sketcher.Constraint("Equal", 1, 2))
sketch4.addConstraint(Sketcher.Constraint("Equal", 2, 3))
sketch4.addConstraint(Sketcher.Constraint("Symmetric", 1, 3, 2, 3, -1, 1))
sketch4.addConstraint(Sketcher.Constraint("Symmetric", 0, 3, 3, 3, -1, 1))
sketch4.addConstraint(Sketcher.Constraint("PointOnObject", 0, 3, -1))
sketch4.addConstraint(Sketcher.Constraint("PointOnObject", 1, 3, -1))
sketch4.addConstraint(Sketcher.Constraint("Diameter", 0, 9.0))
sketch4.addConstraint(Sketcher.Constraint("DistanceX", -1, 1, 0, 3, 651.0))
sketch4.addConstraint(Sketcher.Constraint("DistanceX", -1, 1, 1, 3, 221.0))
pocket1 = doc.addObject("PartDesign::Pocket", "Pocket")
body.addObject(pocket1)
pocket1.Profile = sketch4
pocket1.Type = "ThroughAll"
pocket1.Reversed = True

# Sketch on XZ plane
sketch5 = doc.addObject("Sketcher::SketchObject", "Sketch004")
body.addObject(sketch5)
sketch5.AttachmentSupport = (doc.XZ_Plane, [""])
sketch5.MapMode = "FlatFace"
sketch5.AttachmentOffset = App.Placement(Vector(0, 0, 15), App.Rotation())
sketch5.addGeometry(Part.Circle(Vector(711, 0, 0), Vector(0, 0, 1), 1.65), False)
sketch5.addGeometry(Part.Circle(Vector(591, 0, 0), Vector(0, 0, 1), 1.65), False)
sketch5.addGeometry(Part.Circle(Vector(471, 0, 0), Vector(0, 0, 1), 1.65), False)
sketch5.addGeometry(Part.Circle(Vector(221, 0, 0), Vector(0, 0, 1), 1.65), False)
sketch5.addConstraint(Sketcher.Constraint("Equal", 0, 1))
sketch5.addConstraint(Sketcher.Constraint("Equal", 1, 2))
sketch5.addConstraint(Sketcher.Constraint("Equal", 2, 3))
sketch5.addConstraint(Sketcher.Constraint("PointOnObject", 0, 3, -1))
sketch5.addConstraint(Sketcher.Constraint("PointOnObject", 1, 3, -1))
sketch5.addConstraint(Sketcher.Constraint("PointOnObject", 2, 3, -1))
sketch5.addConstraint(Sketcher.Constraint("PointOnObject", 3, 3, -1))
sketch5.addConstraint(Sketcher.Constraint("Diameter", 0, 3.3))
sketch5.addConstraint(Sketcher.Constraint("DistanceX", -1, 1, 0, 3, 711.0))
sketch5.addConstraint(Sketcher.Constraint("DistanceX", -1, 1, 1, 3, 591.0))
sketch5.addConstraint(Sketcher.Constraint("DistanceX", -1, 1, 2, 3, 471.0))
sketch5.addConstraint(Sketcher.Constraint("DistanceX", -1, 1, 3, 3, 221.0))
doc.recompute()
hole3 = doc.addObject("PartDesign::Hole", "Hole002")
body.addObject(hole3)
hole3.Profile = sketch5
hole3.ThreadType = "None"
hole3.Diameter = 3.3
hole3.DepthType = "Dimension"
hole3.Depth = 10.1
hole3.DrillPoint = "Angled"
hole3.DrillPointAngle = 118

# Sketch on XZ plane
sketch6 = doc.addObject("Sketcher::SketchObject", "Sketch005")
body.addObject(sketch6)
sketch6.AttachmentSupport = (doc.XZ_Plane, [""])
sketch6.MapMode = "FlatFace"
sketch6.AttachmentOffset = App.Placement(Vector(0, 0, 15), App.Rotation())
sketch6.addGeometry(Part.Circle(Vector(-221, 0, 0), Vector(0, 0, 1), 2.5), False)
sketch6.addConstraint(Sketcher.Constraint("PointOnObject", 0, 3, -1))
sketch6.addConstraint(Sketcher.Constraint("Diameter", 0, 5.0))
sketch6.addConstraint(Sketcher.Constraint("DistanceX", 0, 3, -1, 1, 221.0))
doc.recompute()
hole4 = doc.addObject("PartDesign::Hole", "Hole003")
body.addObject(hole4)
hole4.Profile = sketch6
hole4.ThreadType = "None"
hole4.Diameter = 5
hole4.DepthType = "Dimension"
hole4.Depth = 15
hole4.DrillPoint = "Angled"
hole4.DrillPointAngle = 118

doc.recompute()
